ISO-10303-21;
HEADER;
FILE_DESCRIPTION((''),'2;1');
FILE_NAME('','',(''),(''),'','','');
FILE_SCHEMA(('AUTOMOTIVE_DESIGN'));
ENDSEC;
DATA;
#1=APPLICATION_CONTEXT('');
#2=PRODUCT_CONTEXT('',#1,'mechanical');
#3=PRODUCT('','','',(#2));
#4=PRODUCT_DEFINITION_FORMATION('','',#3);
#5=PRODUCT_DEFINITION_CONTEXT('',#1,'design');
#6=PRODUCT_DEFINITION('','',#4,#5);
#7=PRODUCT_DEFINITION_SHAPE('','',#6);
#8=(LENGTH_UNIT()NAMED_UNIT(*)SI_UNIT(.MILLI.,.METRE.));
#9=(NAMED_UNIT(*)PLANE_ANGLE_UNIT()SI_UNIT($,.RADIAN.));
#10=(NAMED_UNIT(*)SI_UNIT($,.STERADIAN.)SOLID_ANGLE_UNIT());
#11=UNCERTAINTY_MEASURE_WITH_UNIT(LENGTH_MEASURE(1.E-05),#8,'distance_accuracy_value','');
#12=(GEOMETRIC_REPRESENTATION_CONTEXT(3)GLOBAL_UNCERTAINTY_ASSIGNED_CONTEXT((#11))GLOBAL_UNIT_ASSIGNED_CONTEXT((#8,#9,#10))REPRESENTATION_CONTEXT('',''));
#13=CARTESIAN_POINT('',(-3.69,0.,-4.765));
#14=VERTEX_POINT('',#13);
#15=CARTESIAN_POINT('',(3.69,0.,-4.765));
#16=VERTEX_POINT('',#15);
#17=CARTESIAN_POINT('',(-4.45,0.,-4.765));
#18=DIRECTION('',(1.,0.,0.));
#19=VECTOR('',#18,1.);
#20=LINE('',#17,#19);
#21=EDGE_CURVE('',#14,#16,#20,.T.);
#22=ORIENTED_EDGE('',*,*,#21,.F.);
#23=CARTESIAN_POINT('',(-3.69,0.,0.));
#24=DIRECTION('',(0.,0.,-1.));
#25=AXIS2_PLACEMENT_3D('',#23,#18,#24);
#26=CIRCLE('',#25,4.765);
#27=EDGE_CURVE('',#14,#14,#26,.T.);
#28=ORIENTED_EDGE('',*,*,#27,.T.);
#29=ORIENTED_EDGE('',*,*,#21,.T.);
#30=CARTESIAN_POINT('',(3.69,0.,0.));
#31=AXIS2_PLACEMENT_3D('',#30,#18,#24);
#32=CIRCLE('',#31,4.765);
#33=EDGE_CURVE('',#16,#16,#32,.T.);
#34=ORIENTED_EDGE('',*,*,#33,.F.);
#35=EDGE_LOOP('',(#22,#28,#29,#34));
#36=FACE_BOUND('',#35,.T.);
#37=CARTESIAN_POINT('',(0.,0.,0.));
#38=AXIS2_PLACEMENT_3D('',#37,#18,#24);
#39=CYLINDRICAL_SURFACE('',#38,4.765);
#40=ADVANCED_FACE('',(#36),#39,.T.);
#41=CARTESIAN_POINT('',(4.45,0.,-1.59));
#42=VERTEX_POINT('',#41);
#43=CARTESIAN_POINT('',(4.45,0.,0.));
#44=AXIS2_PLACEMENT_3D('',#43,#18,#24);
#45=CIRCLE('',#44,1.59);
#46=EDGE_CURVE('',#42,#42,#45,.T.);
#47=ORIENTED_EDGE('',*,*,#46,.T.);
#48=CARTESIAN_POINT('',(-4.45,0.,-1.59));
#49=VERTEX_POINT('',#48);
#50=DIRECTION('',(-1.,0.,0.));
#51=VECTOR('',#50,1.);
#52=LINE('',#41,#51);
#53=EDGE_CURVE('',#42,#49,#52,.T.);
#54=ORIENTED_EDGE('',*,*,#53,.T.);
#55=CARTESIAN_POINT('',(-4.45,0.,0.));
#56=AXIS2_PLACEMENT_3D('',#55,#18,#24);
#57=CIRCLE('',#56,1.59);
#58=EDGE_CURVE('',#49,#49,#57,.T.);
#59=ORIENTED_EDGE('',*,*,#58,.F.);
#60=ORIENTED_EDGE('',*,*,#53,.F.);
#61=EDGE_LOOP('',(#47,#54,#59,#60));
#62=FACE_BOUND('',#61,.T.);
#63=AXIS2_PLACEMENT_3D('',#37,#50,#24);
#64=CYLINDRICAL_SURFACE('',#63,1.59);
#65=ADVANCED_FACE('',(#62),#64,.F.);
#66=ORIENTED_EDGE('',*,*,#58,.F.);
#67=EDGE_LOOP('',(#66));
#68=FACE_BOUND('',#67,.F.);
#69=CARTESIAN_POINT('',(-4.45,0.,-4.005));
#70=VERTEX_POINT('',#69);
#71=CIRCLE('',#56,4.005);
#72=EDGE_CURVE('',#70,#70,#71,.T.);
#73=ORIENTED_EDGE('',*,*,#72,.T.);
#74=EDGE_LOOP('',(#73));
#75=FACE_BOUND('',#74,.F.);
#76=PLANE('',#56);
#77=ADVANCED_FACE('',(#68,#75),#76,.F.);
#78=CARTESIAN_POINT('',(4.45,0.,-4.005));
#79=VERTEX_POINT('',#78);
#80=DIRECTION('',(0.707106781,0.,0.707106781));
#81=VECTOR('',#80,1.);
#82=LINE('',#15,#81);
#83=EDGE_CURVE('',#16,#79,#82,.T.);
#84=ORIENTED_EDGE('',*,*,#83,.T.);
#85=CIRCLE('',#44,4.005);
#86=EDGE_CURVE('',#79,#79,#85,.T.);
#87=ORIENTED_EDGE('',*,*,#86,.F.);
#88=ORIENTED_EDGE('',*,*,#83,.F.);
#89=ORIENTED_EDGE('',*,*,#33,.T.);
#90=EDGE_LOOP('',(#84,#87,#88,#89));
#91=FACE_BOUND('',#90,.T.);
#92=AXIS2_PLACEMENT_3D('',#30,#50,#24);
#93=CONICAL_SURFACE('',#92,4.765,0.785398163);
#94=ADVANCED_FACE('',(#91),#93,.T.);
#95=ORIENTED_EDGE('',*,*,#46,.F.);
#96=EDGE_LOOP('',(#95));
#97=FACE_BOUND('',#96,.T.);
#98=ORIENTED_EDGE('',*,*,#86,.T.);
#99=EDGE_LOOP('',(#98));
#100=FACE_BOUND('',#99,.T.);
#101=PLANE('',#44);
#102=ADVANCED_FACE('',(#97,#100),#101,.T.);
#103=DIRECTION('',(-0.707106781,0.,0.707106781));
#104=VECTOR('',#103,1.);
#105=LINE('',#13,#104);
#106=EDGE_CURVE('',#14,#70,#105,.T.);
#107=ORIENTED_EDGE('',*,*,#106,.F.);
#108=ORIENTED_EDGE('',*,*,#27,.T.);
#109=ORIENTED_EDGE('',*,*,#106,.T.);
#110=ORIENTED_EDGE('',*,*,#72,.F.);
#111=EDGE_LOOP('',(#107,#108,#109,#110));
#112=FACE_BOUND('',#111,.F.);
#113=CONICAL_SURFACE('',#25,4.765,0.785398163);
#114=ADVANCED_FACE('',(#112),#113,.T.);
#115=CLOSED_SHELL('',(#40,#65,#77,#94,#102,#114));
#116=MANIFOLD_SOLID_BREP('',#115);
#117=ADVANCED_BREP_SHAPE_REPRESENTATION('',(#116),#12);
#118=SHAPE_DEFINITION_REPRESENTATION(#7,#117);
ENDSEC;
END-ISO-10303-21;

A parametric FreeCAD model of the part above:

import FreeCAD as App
import Part
import Sketcher
Q = App.Units.Quantity


def edges_at(feature, points):
    """Names of the edges that pass closest to the given points."""
    edges = feature.Shape.Edges
    near = lambda p: min(range(len(edges)), key=lambda i: edges[i].distToShape(Part.Vertex(*p))[0])
    return sorted({f"Edge{near(p) + 1}" for p in points})

doc = App.newDocument("Part")
body = doc.addObject("PartDesign::Body", "Body")

sketch1 = body.newObject("Sketcher::SketchObject", "Sketch")
sketch1.AttachmentSupport = (doc.getObject("YZ_Plane"), [""])
sketch1.MapMode = "FlatFace"
sketch1.addGeometry([
    Part.Circle(App.Vector(0, 0, 0), App.Vector(0, 0, 1), 4.765),
    Part.Circle(App.Vector(0, 0, 0), App.Vector(0, 0, 1), 1.59),
], False)
sketch1.addConstraint([
    Sketcher.Constraint("Coincident", 0, 3, -1, 1),
    Sketcher.Constraint("Coincident", 1, 3, -1, 1),
    Sketcher.Constraint("Diameter", 0, Q("9.53 mm")),
    Sketcher.Constraint("Diameter", 1, Q("3.18 mm")),
])
pad1 = body.newObject("PartDesign::Pad", "Pad")
pad1.Profile = sketch1
pad1.Length = 8.9
pad1.Midplane = True
doc.recompute()

chamfer = body.newObject("PartDesign::Chamfer", "Chamfer")
chamfer.Base = (pad1, edges_at(pad1, [(-4.45, 0, 4.765), (4.45, 0, 4.765)]))
chamfer.Size = 0.76

doc.recompute()
